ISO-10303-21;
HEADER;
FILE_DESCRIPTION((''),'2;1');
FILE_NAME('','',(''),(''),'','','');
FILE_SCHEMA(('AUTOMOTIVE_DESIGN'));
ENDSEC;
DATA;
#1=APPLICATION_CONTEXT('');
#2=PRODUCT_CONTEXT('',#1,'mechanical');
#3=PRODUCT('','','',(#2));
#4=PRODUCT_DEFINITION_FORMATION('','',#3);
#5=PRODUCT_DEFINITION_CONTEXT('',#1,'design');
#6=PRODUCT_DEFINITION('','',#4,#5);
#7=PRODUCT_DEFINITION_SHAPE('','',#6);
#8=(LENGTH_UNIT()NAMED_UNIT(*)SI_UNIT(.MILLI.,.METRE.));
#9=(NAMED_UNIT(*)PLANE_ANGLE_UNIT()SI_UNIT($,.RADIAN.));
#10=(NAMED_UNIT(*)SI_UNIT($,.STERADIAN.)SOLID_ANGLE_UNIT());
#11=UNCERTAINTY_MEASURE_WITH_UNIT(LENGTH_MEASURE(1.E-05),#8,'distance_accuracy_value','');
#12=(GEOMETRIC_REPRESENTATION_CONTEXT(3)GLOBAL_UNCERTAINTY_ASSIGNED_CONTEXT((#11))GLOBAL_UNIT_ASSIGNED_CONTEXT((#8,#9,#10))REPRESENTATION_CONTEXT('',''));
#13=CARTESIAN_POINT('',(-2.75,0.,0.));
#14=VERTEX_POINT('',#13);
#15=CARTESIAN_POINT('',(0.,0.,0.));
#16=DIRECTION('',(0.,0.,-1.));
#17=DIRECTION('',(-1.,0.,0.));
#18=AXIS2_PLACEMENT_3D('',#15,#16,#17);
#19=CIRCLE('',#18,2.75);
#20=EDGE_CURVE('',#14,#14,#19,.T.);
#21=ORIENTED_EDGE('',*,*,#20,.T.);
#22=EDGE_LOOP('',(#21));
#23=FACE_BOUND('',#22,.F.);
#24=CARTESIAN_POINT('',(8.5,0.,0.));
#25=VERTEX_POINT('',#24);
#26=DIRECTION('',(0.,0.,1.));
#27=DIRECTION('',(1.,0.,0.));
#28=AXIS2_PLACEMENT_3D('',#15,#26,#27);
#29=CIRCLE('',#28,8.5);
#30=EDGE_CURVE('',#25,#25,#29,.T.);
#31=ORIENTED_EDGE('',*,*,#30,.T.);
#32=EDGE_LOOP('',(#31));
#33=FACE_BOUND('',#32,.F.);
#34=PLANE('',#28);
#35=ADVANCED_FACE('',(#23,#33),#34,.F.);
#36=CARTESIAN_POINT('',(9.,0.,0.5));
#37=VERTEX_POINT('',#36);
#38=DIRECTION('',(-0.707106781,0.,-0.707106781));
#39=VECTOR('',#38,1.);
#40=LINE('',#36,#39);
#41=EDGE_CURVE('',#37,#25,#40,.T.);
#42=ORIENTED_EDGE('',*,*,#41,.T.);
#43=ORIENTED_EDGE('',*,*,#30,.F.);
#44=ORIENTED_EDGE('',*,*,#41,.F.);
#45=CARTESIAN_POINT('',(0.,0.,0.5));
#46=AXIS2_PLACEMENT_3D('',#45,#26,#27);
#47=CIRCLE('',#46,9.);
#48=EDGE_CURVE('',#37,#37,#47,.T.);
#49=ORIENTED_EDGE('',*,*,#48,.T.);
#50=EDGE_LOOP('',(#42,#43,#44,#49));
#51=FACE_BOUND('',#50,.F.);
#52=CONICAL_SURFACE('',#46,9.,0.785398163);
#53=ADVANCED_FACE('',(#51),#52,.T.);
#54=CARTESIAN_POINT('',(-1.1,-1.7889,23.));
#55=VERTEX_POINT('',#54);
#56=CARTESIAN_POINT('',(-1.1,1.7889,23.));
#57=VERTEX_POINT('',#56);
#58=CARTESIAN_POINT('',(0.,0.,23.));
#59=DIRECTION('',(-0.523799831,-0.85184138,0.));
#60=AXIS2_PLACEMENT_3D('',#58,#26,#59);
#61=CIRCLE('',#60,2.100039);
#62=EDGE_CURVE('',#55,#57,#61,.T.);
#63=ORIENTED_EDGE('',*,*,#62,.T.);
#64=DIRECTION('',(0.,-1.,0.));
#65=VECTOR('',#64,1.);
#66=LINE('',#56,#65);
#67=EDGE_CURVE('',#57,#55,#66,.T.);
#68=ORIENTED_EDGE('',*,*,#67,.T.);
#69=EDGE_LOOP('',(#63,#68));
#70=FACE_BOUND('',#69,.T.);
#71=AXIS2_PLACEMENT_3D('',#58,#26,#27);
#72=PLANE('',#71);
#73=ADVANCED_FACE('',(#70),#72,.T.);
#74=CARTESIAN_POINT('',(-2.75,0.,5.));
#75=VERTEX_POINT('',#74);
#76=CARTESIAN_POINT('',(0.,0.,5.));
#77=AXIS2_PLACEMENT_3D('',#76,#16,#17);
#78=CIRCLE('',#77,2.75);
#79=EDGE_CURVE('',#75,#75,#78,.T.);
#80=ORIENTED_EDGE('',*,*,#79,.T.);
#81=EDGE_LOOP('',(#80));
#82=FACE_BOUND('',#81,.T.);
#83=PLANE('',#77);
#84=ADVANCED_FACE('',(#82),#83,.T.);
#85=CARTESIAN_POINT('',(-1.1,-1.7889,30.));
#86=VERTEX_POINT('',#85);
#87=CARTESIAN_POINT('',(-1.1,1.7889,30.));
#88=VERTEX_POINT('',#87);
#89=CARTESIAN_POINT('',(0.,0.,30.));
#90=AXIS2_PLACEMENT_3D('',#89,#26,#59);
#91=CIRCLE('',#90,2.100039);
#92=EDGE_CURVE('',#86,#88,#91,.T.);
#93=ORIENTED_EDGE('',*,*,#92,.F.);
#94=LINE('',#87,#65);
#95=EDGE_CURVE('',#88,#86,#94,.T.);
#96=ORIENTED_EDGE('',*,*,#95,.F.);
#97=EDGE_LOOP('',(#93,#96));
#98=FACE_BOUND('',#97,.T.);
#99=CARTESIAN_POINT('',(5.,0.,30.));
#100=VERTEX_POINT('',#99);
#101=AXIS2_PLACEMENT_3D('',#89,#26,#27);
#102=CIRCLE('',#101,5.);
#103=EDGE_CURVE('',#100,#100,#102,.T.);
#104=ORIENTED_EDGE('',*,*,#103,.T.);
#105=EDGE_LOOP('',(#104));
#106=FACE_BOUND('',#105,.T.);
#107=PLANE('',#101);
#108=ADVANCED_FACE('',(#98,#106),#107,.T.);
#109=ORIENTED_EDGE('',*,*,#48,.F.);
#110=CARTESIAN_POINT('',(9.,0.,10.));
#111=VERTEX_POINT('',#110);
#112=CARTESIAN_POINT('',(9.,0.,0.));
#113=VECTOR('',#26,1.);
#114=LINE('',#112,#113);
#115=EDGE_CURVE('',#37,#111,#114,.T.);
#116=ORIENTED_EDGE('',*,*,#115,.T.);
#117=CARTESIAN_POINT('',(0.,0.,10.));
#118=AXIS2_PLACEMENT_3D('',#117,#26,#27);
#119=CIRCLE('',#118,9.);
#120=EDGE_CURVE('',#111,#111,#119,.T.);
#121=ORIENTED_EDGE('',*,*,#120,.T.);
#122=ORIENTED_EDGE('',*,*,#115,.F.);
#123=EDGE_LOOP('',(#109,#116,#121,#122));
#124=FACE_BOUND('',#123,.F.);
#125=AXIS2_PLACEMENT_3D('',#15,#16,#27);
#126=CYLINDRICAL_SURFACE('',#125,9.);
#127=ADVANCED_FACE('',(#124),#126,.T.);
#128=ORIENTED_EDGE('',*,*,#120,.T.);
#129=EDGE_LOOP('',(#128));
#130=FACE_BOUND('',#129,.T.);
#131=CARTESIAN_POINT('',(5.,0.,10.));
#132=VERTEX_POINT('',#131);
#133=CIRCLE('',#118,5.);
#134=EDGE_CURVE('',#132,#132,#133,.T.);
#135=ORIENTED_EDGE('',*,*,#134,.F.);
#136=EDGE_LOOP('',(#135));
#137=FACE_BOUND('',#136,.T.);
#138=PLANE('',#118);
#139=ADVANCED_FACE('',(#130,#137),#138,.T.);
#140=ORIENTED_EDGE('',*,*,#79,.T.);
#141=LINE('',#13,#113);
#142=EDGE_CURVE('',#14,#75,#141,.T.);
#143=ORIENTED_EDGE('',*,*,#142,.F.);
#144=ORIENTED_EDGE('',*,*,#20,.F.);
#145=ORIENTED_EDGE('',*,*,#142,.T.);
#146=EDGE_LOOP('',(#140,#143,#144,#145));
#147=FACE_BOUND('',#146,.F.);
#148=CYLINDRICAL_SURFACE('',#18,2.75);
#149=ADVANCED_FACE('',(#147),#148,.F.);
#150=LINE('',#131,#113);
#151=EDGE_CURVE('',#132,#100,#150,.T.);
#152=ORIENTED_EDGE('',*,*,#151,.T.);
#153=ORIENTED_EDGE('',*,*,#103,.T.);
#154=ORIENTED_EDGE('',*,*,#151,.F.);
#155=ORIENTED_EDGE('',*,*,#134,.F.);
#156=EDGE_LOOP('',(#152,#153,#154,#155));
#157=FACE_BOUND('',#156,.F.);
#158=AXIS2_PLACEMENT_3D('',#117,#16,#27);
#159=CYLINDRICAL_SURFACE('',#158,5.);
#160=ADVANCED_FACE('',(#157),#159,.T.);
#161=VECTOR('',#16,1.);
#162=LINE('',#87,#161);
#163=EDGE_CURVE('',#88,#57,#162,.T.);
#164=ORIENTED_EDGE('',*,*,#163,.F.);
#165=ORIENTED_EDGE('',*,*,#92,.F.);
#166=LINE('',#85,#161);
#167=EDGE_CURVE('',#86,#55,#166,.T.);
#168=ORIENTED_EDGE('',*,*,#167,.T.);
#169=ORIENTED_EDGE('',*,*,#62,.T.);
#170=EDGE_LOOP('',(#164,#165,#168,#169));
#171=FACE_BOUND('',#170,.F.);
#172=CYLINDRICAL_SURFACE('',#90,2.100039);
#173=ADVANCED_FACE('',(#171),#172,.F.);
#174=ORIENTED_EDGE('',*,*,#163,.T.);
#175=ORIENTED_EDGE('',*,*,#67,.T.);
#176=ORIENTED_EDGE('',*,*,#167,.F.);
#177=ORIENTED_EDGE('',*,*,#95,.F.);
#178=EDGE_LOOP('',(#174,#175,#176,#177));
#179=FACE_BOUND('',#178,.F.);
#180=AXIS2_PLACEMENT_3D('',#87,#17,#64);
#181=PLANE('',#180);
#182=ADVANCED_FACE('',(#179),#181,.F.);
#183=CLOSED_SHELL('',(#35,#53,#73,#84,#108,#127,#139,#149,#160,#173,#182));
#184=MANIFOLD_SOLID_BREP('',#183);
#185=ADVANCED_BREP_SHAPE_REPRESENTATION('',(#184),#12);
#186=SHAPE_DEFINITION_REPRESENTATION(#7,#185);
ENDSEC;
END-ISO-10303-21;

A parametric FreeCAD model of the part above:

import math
import FreeCAD as App
import Part
import Sketcher

V = App.Vector


def edges_at(feature, points):
    """Names of the edges that pass closest to the given points."""
    edges = feature.Shape.Edges
    near = lambda p: min(range(len(edges)), key=lambda i: edges[i].distToShape(Part.Vertex(*p))[0])
    return sorted({f"Edge{near(p) + 1}" for p in points})

doc = App.newDocument("Part")
body = doc.addObject("PartDesign::Body", "Body")

sketch1 = body.newObject("Sketcher::SketchObject", "Sketch")
sketch1.AttachmentSupport = (doc.getObject("XY_Plane"), [""])
sketch1.MapMode = "FlatFace"
sketch1.addGeometry(Part.Circle(V(0, 0, 0), V(0, 0, 1), 9), False)
sketch1.addConstraint([
    Sketcher.Constraint("Coincident", 0, 3, -1, 1),
    Sketcher.Constraint("Diameter", 0, 18.0),
])
pad1 = body.newObject("PartDesign::Pad", "Pad")
pad1.Profile = sketch1
pad1.Length = 10
doc.recompute()

chamfer = body.newObject("PartDesign::Chamfer", "Chamfer")
chamfer.Base = (pad1, edges_at(pad1, [(-9, 0, 0)]))
chamfer.Size = 0.5

sketch2 = body.newObject("Sketcher::SketchObject", "Sketch001")
sketch2.AttachmentSupport = (doc.getObject("XY_Plane"), [""])
sketch2.MapMode = "FlatFace"
sketch2.addGeometry(Part.Circle(V(0, 0, 0), V(0, 0, 1), 2.8), False)
sketch2.addConstraint([
    Sketcher.Constraint("Coincident", 0, 3, -1, 1),
    Sketcher.Constraint("Diameter", 0, 5.5),
])
pocket1 = body.newObject("PartDesign::Pocket", "Pocket")
pocket1.Profile = sketch2
pocket1.Length = 5
pocket1.Reversed = True

sketch3 = body.newObject("Sketcher::SketchObject", "Sketch002")
sketch3.AttachmentSupport = (doc.getObject("XY_Plane"), [""])
sketch3.MapMode = "FlatFace"
sketch3.AttachmentOffset = App.Placement(V(0, 0, 10), App.Rotation())
sketch3.addGeometry(Part.Circle(V(0, 0, 0), V(0, 0, 1), 5), False)
sketch3.addConstraint([
    Sketcher.Constraint("Coincident", 0, 3, -1, 1),
    Sketcher.Constraint("Diameter", 0, 10.0),
])
pad2 = body.newObject("PartDesign::Pad", "Pad001")
pad2.Profile = sketch3
pad2.Length = 20

sketch4 = body.newObject("Sketcher::SketchObject", "Sketch003")
sketch4.AttachmentSupport = (doc.getObject("XY_Plane"), [""])
sketch4.MapMode = "FlatFace"
sketch4.AttachmentOffset = App.Placement(V(0, 0, 30), App.Rotation())
sketch4.addGeometry([
    Part.LineSegment(V(-1.1, 1.8, 0), V(-1.1, -1.8, 0)),
    Part.ArcOfCircle(Part.Circle(V(0, 0, 0), V(0, 0, 1), 2.1), math.radians(-122), math.radians(122)),
], False)
sketch4.addConstraint([
    Sketcher.Constraint("Coincident", 0, 1, 1, 2),
    Sketcher.Constraint("Coincident", 1, 1, 0, 2),
    Sketcher.Constraint("Vertical", 0),
    Sketcher.Constraint("Coincident", 1, 3, -1, 1),
    Sketcher.Constraint("Radius", 1, 2.1),
    Sketcher.Constraint("DistanceX", 0, 1, -1, 1, 1.1),
])
pocket2 = body.newObject("PartDesign::Pocket", "Pocket001")
pocket2.Profile = sketch4
pocket2.Length = 7

doc.recompute()
